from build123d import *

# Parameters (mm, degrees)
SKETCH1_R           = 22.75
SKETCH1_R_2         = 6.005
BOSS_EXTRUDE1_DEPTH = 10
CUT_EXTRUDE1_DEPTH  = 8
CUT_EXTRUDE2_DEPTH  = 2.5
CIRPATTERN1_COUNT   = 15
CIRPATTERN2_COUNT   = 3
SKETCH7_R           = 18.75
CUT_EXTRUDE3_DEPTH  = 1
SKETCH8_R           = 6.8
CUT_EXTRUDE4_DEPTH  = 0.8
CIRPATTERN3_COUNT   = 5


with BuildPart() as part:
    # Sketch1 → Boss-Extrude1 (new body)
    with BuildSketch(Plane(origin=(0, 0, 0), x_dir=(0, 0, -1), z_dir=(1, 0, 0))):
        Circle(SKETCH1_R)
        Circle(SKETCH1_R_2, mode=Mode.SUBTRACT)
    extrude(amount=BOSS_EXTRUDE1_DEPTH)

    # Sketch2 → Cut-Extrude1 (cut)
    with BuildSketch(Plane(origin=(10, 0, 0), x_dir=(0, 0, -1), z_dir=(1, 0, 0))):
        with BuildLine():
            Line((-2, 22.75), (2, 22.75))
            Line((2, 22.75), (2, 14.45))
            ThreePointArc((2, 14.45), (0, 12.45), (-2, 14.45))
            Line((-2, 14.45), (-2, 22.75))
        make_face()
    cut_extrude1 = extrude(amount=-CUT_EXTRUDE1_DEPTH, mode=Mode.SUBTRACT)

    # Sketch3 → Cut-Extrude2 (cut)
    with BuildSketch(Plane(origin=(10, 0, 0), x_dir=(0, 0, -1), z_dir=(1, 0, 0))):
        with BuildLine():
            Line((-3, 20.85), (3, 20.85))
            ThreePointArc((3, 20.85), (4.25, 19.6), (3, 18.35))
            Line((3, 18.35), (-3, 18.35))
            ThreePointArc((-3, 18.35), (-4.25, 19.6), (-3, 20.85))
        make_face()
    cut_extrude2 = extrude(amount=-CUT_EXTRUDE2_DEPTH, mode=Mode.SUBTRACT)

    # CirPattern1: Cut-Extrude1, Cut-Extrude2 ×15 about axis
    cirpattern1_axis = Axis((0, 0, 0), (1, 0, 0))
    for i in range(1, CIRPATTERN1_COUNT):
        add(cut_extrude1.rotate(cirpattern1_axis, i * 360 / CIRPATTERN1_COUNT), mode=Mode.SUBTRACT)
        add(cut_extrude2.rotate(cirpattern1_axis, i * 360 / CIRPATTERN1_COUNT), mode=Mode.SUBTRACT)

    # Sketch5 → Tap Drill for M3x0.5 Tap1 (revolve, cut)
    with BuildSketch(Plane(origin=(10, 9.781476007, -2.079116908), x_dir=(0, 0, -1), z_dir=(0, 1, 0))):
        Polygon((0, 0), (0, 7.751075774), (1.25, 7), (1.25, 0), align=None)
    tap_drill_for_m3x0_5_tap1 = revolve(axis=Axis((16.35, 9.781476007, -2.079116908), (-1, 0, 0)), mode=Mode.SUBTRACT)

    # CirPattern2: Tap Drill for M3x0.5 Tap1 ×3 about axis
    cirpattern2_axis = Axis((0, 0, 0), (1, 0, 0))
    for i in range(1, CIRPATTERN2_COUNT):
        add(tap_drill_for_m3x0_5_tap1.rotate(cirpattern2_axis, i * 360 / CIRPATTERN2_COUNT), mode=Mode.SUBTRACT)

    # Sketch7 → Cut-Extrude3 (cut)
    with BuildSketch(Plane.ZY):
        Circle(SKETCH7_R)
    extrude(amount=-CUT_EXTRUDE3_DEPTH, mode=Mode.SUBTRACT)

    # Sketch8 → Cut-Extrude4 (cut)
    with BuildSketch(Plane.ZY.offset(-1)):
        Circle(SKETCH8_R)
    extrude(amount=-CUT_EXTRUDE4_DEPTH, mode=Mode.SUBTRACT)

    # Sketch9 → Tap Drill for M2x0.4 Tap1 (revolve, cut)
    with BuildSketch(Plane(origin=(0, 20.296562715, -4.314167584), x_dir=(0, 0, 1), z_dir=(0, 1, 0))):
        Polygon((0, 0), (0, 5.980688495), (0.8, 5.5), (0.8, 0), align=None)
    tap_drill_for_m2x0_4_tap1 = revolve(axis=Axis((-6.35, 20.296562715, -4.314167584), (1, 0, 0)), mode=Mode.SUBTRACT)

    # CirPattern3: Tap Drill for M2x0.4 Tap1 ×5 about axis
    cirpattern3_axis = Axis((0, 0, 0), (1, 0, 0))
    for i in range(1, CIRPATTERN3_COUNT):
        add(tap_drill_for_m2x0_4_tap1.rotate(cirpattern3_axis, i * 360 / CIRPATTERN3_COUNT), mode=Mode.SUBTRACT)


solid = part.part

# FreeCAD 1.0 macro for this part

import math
import FreeCAD as App
import Part
import Sketcher
Q = App.Units.Quantity

doc = App.newDocument("Part")
body = doc.addObject("PartDesign::Body", "Body")

# Sketch on YZ plane
sketch1 = body.newObject("Sketcher::SketchObject", "Sketch")
sketch1.AttachmentSupport = (doc.getObject("YZ_Plane"), [""])
sketch1.MapMode = "FlatFace"
sketch1.addGeometry(Part.Circle(App.Vector(0, 0, 0), App.Vector(0, 0, 1), 23), False)
sketch1.addGeometry(Part.Circle(App.Vector(0, 0, 0), App.Vector(0, 0, 1), 6), False)
sketch1.addConstraint(Sketcher.Constraint("Coincident", 0, 3, -1, 1))
sketch1.addConstraint(Sketcher.Constraint("Coincident", 1, 3, -1, 1))
sketch1.addConstraint(Sketcher.Constraint("Diameter", 0, Q("45.5 mm")))
sketch1.addConstraint(Sketcher.Constraint("Diameter", 1, Q("12.01 mm")))
pad1 = body.newObject("PartDesign::Pad", "Pad")
pad1.Profile = sketch1
pad1.Length = 10

# Sketch on YZ plane
sketch2 = body.newObject("Sketcher::SketchObject", "Sketch001")
sketch2.AttachmentSupport = (doc.getObject("YZ_Plane"), [""])
sketch2.MapMode = "FlatFace"
sketch2.AttachmentOffset = App.Placement(App.Vector(0, 0, 10), App.Rotation())
sketch2.addGeometry(Part.LineSegment(App.Vector(22.8, -2, 0), App.Vector(22.8, 2, 0)), False)
sketch2.addGeometry(Part.LineSegment(App.Vector(22.8, 2, 0), App.Vector(14.4, 2, 0)), False)
sketch2.addGeometry(Part.ArcOfCircle(Part.Circle(App.Vector(14.4, 0, 0), App.Vector(0, 0, 1), 2), math.radians(90), math.radians(270)), False)
sketch2.addGeometry(Part.LineSegment(App.Vector(14.4, -2, 0), App.Vector(22.8, -2, 0)), False)
sketch2.addConstraint(Sketcher.Constraint("Coincident", 0, 2, 1, 1))
sketch2.addConstraint(Sketcher.Constraint("Tangent", 1, 2, 2, 1))
sketch2.addConstraint(Sketcher.Constraint("Tangent", 2, 2, 3, 1))
sketch2.addConstraint(Sketcher.Constraint("Coincident", 3, 2, 0, 1))
sketch2.addConstraint(Sketcher.Constraint("Vertical", 0))
sketch2.addConstraint(Sketcher.Constraint("Horizontal", 1))
sketch2.addConstraint(Sketcher.Constraint("Horizontal", 3))
sketch2.addConstraint(Sketcher.Constraint("PointOnObject", 2, 3, -1))
sketch2.addConstraint(Sketcher.Constraint("Radius", 2, Q("2 mm")))
sketch2.addConstraint(Sketcher.Constraint("DistanceX", 1, 2, 1, 1, Q("8.3 mm")))
sketch2.addConstraint(Sketcher.Constraint("DistanceX", -1, 1, 2, 3, Q("14.45 mm")))
pocket1 = body.newObject("PartDesign::Pocket", "Pocket")
pocket1.Profile = sketch2
pocket1.Length = 8

# Sketch on YZ plane
sketch3 = body.newObject("Sketcher::SketchObject", "Sketch002")
sketch3.AttachmentSupport = (doc.getObject("YZ_Plane"), [""])
sketch3.MapMode = "FlatFace"
sketch3.AttachmentOffset = App.Placement(App.Vector(0, 0, 10), App.Rotation())
sketch3.addGeometry(Part.LineSegment(App.Vector(20.9, -3, 0), App.Vector(20.9, 3, 0)), False)
sketch3.addGeometry(Part.ArcOfCircle(Part.Circle(App.Vector(19.6, 3, 0), App.Vector(0, 0, 1), 1.2), math.radians(0), math.radians(180)), False)
sketch3.addGeometry(Part.LineSegment(App.Vector(18.4, 3, 0), App.Vector(18.4, -3, 0)), False)
sketch3.addGeometry(Part.ArcOfCircle(Part.Circle(App.Vector(19.6, -3, 0), App.Vector(0, 0, 1), 1.2), math.radians(180), math.radians(360)), False)
sketch3.addConstraint(Sketcher.Constraint("Tangent", 0, 2, 1, 1))
sketch3.addConstraint(Sketcher.Constraint("Tangent", 1, 2, 2, 1))
sketch3.addConstraint(Sketcher.Constraint("Tangent", 2, 2, 3, 1))
sketch3.addConstraint(Sketcher.Constraint("Tangent", 3, 2, 0, 1))
sketch3.addConstraint(Sketcher.Constraint("Vertical", 0))
sketch3.addConstraint(Sketcher.Constraint("Vertical", 2))
sketch3.addConstraint(Sketcher.Constraint("DistanceY", 0, 1, 0, 2, Q("6 mm")))
sketch3.addConstraint(Sketcher.Constraint("Radius", 1, Q("1.25 mm")))
sketch3.addConstraint(Sketcher.Constraint("DistanceY", -1, 1, 1, 3, Q("3 mm")))
sketch3.addConstraint(Sketcher.Constraint("DistanceX", -1, 1, 1, 3, Q("19.6 mm")))
pocket2 = body.newObject("PartDesign::Pocket", "Pocket001")
pocket2.Profile = sketch3
pocket2.Length = 2.5
doc.recompute()

polarpattern = body.newObject("PartDesign::PolarPattern", "PolarPattern")
polarpattern.Originals = [pocket1, pocket2]
polarpattern.Axis = (doc.getObject("X_Axis"), [""])
polarpattern.Angle = 360
polarpattern.Occurrences = 15
body.Tip = polarpattern

# Sketch on XZ plane
sketch4 = body.newObject("Sketcher::SketchObject", "Sketch003")
sketch4.AttachmentSupport = (doc.getObject("XZ_Plane"), [""])
sketch4.MapMode = "FlatFace"
sketch4.AttachmentOffset = App.Placement(App.Vector(0, 0, -9.781476), App.Rotation())
sketch4.addGeometry(Part.LineSegment(App.Vector(2.2, -2.1, 0), App.Vector(10, -2.1, 0)), False)
sketch4.addGeometry(Part.LineSegment(App.Vector(10, -2.1, 0), App.Vector(10, -3.3, 0)), False)
sketch4.addGeometry(Part.LineSegment(App.Vector(10, -3.3, 0), App.Vector(3, -3.3, 0)), False)
sketch4.addGeometry(Part.LineSegment(App.Vector(3, -3.3, 0), App.Vector(2.2, -2.1, 0)), False)
sketch4.addGeometry(Part.LineSegment(App.Vector(10, -2.1, 0), App.Vector(2.2, -2.1, 0)), True)  # axis
sketch4.addConstraint(Sketcher.Constraint("Coincident", 0, 2, 1, 1))
sketch4.addConstraint(Sketcher.Constraint("Coincident", 1, 2, 2, 1))
sketch4.addConstraint(Sketcher.Constraint("Coincident", 2, 2, 3, 1))
sketch4.addConstraint(Sketcher.Constraint("Coincident", 3, 2, 0, 1))
sketch4.addConstraint(Sketcher.Constraint("Horizontal", 0))
sketch4.addConstraint(Sketcher.Constraint("Vertical", 1))
sketch4.addConstraint(Sketcher.Constraint("Horizontal", 2))
sketch4.addConstraint(Sketcher.Constraint("Horizontal", 4))
sketch4.addConstraint(Sketcher.Constraint("Coincident", 4, 1, 0, 2))
sketch4.addConstraint(Sketcher.Constraint("Equal", 0, 4))
sketch4.addConstraint(Sketcher.Constraint("DistanceX", 2, 2, 2, 1, Q("7 mm")))
sketch4.addConstraint(Sketcher.Constraint("Angle", 3, Q("121 deg")))
sketch4.addConstraint(Sketcher.Constraint("DistanceX", -1, 1, 0, 2, Q("10 mm")))
sketch4.addConstraint(Sketcher.Constraint("DistanceY", 1, 2, 1, 1, Q("1.25 mm")))
sketch4.addConstraint(Sketcher.Constraint("DistanceY", 0, 2, -1, 1, Q("2.079117 mm")))
groove = body.newObject("PartDesign::Groove", "Groove")
groove.Profile = sketch4
groove.ReferenceAxis = (sketch4, ["Axis0"])
groove.Angle = 360
doc.recompute()

polarpattern2 = body.newObject("PartDesign::PolarPattern", "PolarPattern001")
polarpattern2.Originals = [groove]
polarpattern2.Axis = (doc.getObject("X_Axis"), [""])
polarpattern2.Angle = 360
polarpattern2.Occurrences = 3
body.Tip = polarpattern2

# Sketch on YZ plane
sketch5 = body.newObject("Sketcher::SketchObject", "Sketch004")
sketch5.AttachmentSupport = (doc.getObject("YZ_Plane"), [""])
sketch5.MapMode = "FlatFace"
sketch5.addGeometry(Part.Circle(App.Vector(0, 0, 0), App.Vector(0, 0, 1), 19), False)
sketch5.addConstraint(Sketcher.Constraint("Coincident", 0, 3, -1, 1))
sketch5.addConstraint(Sketcher.Constraint("Diameter", 0, Q("37.5 mm")))
pocket3 = body.newObject("PartDesign::Pocket", "Pocket002")
pocket3.Profile = sketch5
pocket3.Length = 1
pocket3.Reversed = True

# Sketch on YZ plane
sketch6 = body.newObject("Sketcher::SketchObject", "Sketch005")
sketch6.AttachmentSupport = (doc.getObject("YZ_Plane"), [""])
sketch6.MapMode = "FlatFace"
sketch6.AttachmentOffset = App.Placement(App.Vector(0, 0, 1), App.Rotation())
sketch6.addGeometry(Part.Circle(App.Vector(0, 0, 0), App.Vector(0, 0, 1), 7), False)
sketch6.addConstraint(Sketcher.Constraint("Coincident", 0, 3, -1, 1))
sketch6.addConstraint(Sketcher.Constraint("Diameter", 0, Q("13.6 mm")))
pocket4 = body.newObject("PartDesign::Pocket", "Pocket003")
pocket4.Profile = sketch6
pocket4.Length = 0.8
pocket4.Reversed = True

# Sketch on XZ plane
sketch7 = body.newObject("Sketcher::SketchObject", "Sketch006")
sketch7.AttachmentSupport = (doc.getObject("XZ_Plane"), [""])
sketch7.MapMode = "FlatFace"
sketch7.AttachmentOffset = App.Placement(App.Vector(0, 0, -20.296563), App.Rotation())
sketch7.addGeometry(Part.LineSegment(App.Vector(6, -4.3, 0), App.Vector(0, -4.3, 0)), False)
sketch7.addGeometry(Part.LineSegment(App.Vector(0, -4.3, 0), App.Vector(0, -3.5, 0)), False)
sketch7.addGeometry(Part.LineSegment(App.Vector(0, -3.5, 0), App.Vector(5.5, -3.5, 0)), False)
sketch7.addGeometry(Part.LineSegment(App.Vector(5.5, -3.5, 0), App.Vector(6, -4.3, 0)), False)
sketch7.addGeometry(Part.LineSegment(App.Vector(0, -4.3, 0), App.Vector(6, -4.3, 0)), True)  # axis
sketch7.addConstraint(Sketcher.Constraint("Coincident", 0, 2, 1, 1))
sketch7.addConstraint(Sketcher.Constraint("Coincident", 1, 2, 2, 1))
sketch7.addConstraint(Sketcher.Constraint("Coincident", 2, 2, 3, 1))
sketch7.addConstraint(Sketcher.Constraint("Coincident", 3, 2, 0, 1))
sketch7.addConstraint(Sketcher.Constraint("Horizontal", 0))
sketch7.addConstraint(Sketcher.Constraint("Vertical", 1))
sketch7.addConstraint(Sketcher.Constraint("Horizontal", 2))
sketch7.addConstraint(Sketcher.Constraint("Horizontal", 4))
sketch7.addConstraint(Sketcher.Constraint("Coincident", 4, 1, 0, 2))
sketch7.addConstraint(Sketcher.Constraint("PointOnObject", 0, 2, -2))
sketch7.addConstraint(Sketcher.Constraint("Equal", 0, 4))
sketch7.addConstraint(Sketcher.Constraint("Angle", 3, Q("-59 deg")))
sketch7.addConstraint(Sketcher.Constraint("DistanceX", 2, 1, 2, 2, Q("5.5 mm")))
sketch7.addConstraint(Sketcher.Constraint("DistanceY", 1, 1, 1, 2, Q("0.8 mm")))
sketch7.addConstraint(Sketcher.Constraint("DistanceY", 0, 2, -1, 1, Q("4.314168 mm")))
groove2 = body.newObject("PartDesign::Groove", "Groove001")
groove2.Profile = sketch7
groove2.ReferenceAxis = (sketch7, ["Axis0"])
groove2.Angle = 360
doc.recompute()

polarpattern3 = body.newObject("PartDesign::PolarPattern", "PolarPattern002")
polarpattern3.Originals = [groove2]
polarpattern3.Axis = (doc.getObject("X_Axis"), [""])
polarpattern3.Angle = 360
polarpattern3.Occurrences = 5
body.Tip = polarpattern3

doc.recompute()
